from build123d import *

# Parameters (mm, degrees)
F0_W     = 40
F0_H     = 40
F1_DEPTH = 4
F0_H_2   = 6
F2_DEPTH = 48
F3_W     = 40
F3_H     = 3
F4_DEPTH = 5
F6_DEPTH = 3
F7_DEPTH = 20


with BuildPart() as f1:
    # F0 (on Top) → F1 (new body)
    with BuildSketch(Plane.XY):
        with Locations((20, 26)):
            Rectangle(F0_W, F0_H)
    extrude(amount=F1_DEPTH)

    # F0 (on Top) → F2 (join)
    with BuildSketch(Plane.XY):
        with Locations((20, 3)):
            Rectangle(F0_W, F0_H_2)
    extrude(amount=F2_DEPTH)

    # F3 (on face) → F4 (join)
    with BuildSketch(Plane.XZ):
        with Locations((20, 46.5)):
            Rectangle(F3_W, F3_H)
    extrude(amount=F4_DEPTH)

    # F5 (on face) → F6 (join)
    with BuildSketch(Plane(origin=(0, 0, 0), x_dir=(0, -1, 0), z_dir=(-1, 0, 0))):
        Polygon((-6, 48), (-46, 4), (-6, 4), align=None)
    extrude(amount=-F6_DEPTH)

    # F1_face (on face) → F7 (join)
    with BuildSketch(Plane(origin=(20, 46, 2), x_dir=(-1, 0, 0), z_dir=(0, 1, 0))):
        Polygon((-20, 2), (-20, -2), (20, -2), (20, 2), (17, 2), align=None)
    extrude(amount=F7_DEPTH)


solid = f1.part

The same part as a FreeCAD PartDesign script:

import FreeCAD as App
import Part
import Sketcher

doc = App.newDocument("Part")
body = doc.addObject("PartDesign::Body", "Body")

sketch1 = body.newObject("Sketcher::SketchObject", "Sketch")
sketch1.AttachmentSupport = (doc.getObject("XY_Plane"), [""])
sketch1.MapMode = "FlatFace"
sketch1.addGeometry(Part.LineSegment(App.Vector(0, 46, 0), App.Vector(0, 6, 0)), False)
sketch1.addGeometry(Part.LineSegment(App.Vector(0, 6, 0), App.Vector(40, 6, 0)), False)
sketch1.addGeometry(Part.LineSegment(App.Vector(40, 6, 0), App.Vector(40, 46, 0)), False)
sketch1.addGeometry(Part.LineSegment(App.Vector(40, 46, 0), App.Vector(0, 46, 0)), False)
sketch1.addConstraint(Sketcher.Constraint("Coincident", 0, 2, 1, 1))
sketch1.addConstraint(Sketcher.Constraint("Coincident", 1, 2, 2, 1))
sketch1.addConstraint(Sketcher.Constraint("Coincident", 2, 2, 3, 1))
sketch1.addConstraint(Sketcher.Constraint("Coincident", 3, 2, 0, 1))
sketch1.addConstraint(Sketcher.Constraint("Vertical", 0))
sketch1.addConstraint(Sketcher.Constraint("Horizontal", 1))
sketch1.addConstraint(Sketcher.Constraint("Vertical", 2))
sketch1.addConstraint(Sketcher.Constraint("Horizontal", 3))
sketch1.addConstraint(Sketcher.Constraint("PointOnObject", 0, 2, -2))
sketch1.addConstraint(Sketcher.Constraint("Equal", 3, 0))
sketch1.addConstraint(Sketcher.Constraint("DistanceX", 1, 1, 1, 2, 40.0))
sketch1.addConstraint(Sketcher.Constraint("DistanceY", -1, 1, 0, 2, 6.0))
pad1 = body.newObject("PartDesign::Pad", "Pad")
pad1.Profile = sketch1
pad1.Length = 4

sketch2 = body.newObject("Sketcher::SketchObject", "Sketch001")
sketch2.AttachmentSupport = (doc.getObject("XY_Plane"), [""])
sketch2.MapMode = "FlatFace"
sketch2.addGeometry(Part.LineSegment(App.Vector(0, 6, 0), App.Vector(0, 0, 0)), False)
sketch2.addGeometry(Part.LineSegment(App.Vector(0, 0, 0), App.Vector(40, 0, 0)), False)
sketch2.addGeometry(Part.LineSegment(App.Vector(40, 0, 0), App.Vector(40, 6, 0)), False)
sketch2.addGeometry(Part.LineSegment(App.Vector(40, 6, 0), App.Vector(0, 6, 0)), False)
sketch2.addConstraint(Sketcher.Constraint("Coincident", 0, 2, 1, 1))
sketch2.addConstraint(Sketcher.Constraint("Coincident", 1, 2, 2, 1))
sketch2.addConstraint(Sketcher.Constraint("Coincident", 2, 2, 3, 1))
sketch2.addConstraint(Sketcher.Constraint("Coincident", 3, 2, 0, 1))
sketch2.addConstraint(Sketcher.Constraint("Vertical", 0))
sketch2.addConstraint(Sketcher.Constraint("Horizontal", 1))
sketch2.addConstraint(Sketcher.Constraint("Vertical", 2))
sketch2.addConstraint(Sketcher.Constraint("Horizontal", 3))
sketch2.addConstraint(Sketcher.Constraint("Coincident", 0, 2, -1, 1))
sketch2.addConstraint(Sketcher.Constraint("DistanceX", 1, 1, 1, 2, 40.0))
sketch2.addConstraint(Sketcher.Constraint("DistanceY", 0, 2, 0, 1, 6.0))
pad2 = body.newObject("PartDesign::Pad", "Pad001")
pad2.Profile = sketch2
pad2.Length = 48

sketch3 = body.newObject("Sketcher::SketchObject", "Sketch002")
sketch3.AttachmentSupport = (doc.getObject("XZ_Plane"), [""])
sketch3.MapMode = "FlatFace"
sketch3.addGeometry(Part.LineSegment(App.Vector(0, 48, 0), App.Vector(0, 45, 0)), False)
sketch3.addGeometry(Part.LineSegment(App.Vector(0, 45, 0), App.Vector(40, 45, 0)), False)
sketch3.addGeometry(Part.LineSegment(App.Vector(40, 45, 0), App.Vector(40, 48, 0)), False)
sketch3.addGeometry(Part.LineSegment(App.Vector(40, 48, 0), App.Vector(0, 48, 0)), False)
sketch3.addConstraint(Sketcher.Constraint("Coincident", 0, 2, 1, 1))
sketch3.addConstraint(Sketcher.Constraint("Coincident", 1, 2, 2, 1))
sketch3.addConstraint(Sketcher.Constraint("Coincident", 2, 2, 3, 1))
sketch3.addConstraint(Sketcher.Constraint("Coincident", 3, 2, 0, 1))
sketch3.addConstraint(Sketcher.Constraint("Vertical", 0))
sketch3.addConstraint(Sketcher.Constraint("Horizontal", 1))
sketch3.addConstraint(Sketcher.Constraint("Vertical", 2))
sketch3.addConstraint(Sketcher.Constraint("Horizontal", 3))
sketch3.addConstraint(Sketcher.Constraint("PointOnObject", 0, 2, -2))
sketch3.addConstraint(Sketcher.Constraint("DistanceX", 1, 1, 1, 2, 40.0))
sketch3.addConstraint(Sketcher.Constraint("DistanceY", 0, 2, 0, 1, 3.0))
sketch3.addConstraint(Sketcher.Constraint("DistanceY", -1, 1, 0, 2, 45.0))
pad3 = body.newObject("PartDesign::Pad", "Pad002")
pad3.Profile = sketch3
pad3.Length = 5

sketch4 = body.newObject("Sketcher::SketchObject", "Sketch003")
sketch4.AttachmentSupport = (doc.getObject("YZ_Plane"), [""])
sketch4.MapMode = "FlatFace"
sketch4.addGeometry(Part.LineSegment(App.Vector(6, 48, 0), App.Vector(46, 4, 0)), False)
sketch4.addGeometry(Part.LineSegment(App.Vector(46, 4, 0), App.Vector(6, 4, 0)), False)
sketch4.addGeometry(Part.LineSegment(App.Vector(6, 4, 0), App.Vector(6, 48, 0)), False)
sketch4.addConstraint(Sketcher.Constraint("Coincident", 0, 2, 1, 1))
sketch4.addConstraint(Sketcher.Constraint("Coincident", 1, 2, 2, 1))
sketch4.addConstraint(Sketcher.Constraint("Coincident", 2, 2, 0, 1))
sketch4.addConstraint(Sketcher.Constraint("Horizontal", 1))
sketch4.addConstraint(Sketcher.Constraint("Vertical", 2))
sketch4.addConstraint(Sketcher.Constraint("DistanceX", 1, 2, 1, 1, 40.0))
sketch4.addConstraint(Sketcher.Constraint("DistanceY", 2, 1, 2, 2, 44.0))
sketch4.addConstraint(Sketcher.Constraint("DistanceX", -1, 1, 0, 2, 46.0))
sketch4.addConstraint(Sketcher.Constraint("DistanceY", -1, 1, 0, 2, 4.0))
pad4 = body.newObject("PartDesign::Pad", "Pad003")
pad4.Profile = sketch4
pad4.Length = 3

sketch5 = body.newObject("Sketcher::SketchObject", "Sketch004")
sketch5.AttachmentSupport = (doc.getObject("XZ_Plane"), [""])
sketch5.MapMode = "FlatFace"
sketch5.AttachmentOffset = App.Placement(App.Vector(0, 0, -46), App.Rotation())
sketch5.addGeometry(Part.LineSegment(App.Vector(40, 4, 0), App.Vector(40, 0, 0)), False)
sketch5.addGeometry(Part.LineSegment(App.Vector(40, 0, 0), App.Vector(0, 0, 0)), False)
sketch5.addGeometry(Part.LineSegment(App.Vector(0, 0, 0), App.Vector(0, 4, 0)), False)
sketch5.addGeometry(Part.LineSegment(App.Vector(0, 4, 0), App.Vector(40, 4, 0)), False)
sketch5.addConstraint(Sketcher.Constraint("Coincident", 0, 2, 1, 1))
sketch5.addConstraint(Sketcher.Constraint("Coincident", 1, 2, 2, 1))
sketch5.addConstraint(Sketcher.Constraint("Coincident", 2, 2, 3, 1))
sketch5.addConstraint(Sketcher.Constraint("Coincident", 3, 2, 0, 1))
sketch5.addConstraint(Sketcher.Constraint("Vertical", 0))
sketch5.addConstraint(Sketcher.Constraint("Horizontal", 1))
sketch5.addConstraint(Sketcher.Constraint("Vertical", 2))
sketch5.addConstraint(Sketcher.Constraint("Horizontal", 3))
sketch5.addConstraint(Sketcher.Constraint("Coincident", 1, 2, -1, 1))
sketch5.addConstraint(Sketcher.Constraint("DistanceX", 1, 2, 1, 1, 40.0))
sketch5.addConstraint(Sketcher.Constraint("DistanceY", 0, 2, 0, 1, 4.0))
pad5 = body.newObject("PartDesign::Pad", "Pad004")
pad5.Profile = sketch5
pad5.Length = 20
pad5.Reversed = True

doc.recompute()
